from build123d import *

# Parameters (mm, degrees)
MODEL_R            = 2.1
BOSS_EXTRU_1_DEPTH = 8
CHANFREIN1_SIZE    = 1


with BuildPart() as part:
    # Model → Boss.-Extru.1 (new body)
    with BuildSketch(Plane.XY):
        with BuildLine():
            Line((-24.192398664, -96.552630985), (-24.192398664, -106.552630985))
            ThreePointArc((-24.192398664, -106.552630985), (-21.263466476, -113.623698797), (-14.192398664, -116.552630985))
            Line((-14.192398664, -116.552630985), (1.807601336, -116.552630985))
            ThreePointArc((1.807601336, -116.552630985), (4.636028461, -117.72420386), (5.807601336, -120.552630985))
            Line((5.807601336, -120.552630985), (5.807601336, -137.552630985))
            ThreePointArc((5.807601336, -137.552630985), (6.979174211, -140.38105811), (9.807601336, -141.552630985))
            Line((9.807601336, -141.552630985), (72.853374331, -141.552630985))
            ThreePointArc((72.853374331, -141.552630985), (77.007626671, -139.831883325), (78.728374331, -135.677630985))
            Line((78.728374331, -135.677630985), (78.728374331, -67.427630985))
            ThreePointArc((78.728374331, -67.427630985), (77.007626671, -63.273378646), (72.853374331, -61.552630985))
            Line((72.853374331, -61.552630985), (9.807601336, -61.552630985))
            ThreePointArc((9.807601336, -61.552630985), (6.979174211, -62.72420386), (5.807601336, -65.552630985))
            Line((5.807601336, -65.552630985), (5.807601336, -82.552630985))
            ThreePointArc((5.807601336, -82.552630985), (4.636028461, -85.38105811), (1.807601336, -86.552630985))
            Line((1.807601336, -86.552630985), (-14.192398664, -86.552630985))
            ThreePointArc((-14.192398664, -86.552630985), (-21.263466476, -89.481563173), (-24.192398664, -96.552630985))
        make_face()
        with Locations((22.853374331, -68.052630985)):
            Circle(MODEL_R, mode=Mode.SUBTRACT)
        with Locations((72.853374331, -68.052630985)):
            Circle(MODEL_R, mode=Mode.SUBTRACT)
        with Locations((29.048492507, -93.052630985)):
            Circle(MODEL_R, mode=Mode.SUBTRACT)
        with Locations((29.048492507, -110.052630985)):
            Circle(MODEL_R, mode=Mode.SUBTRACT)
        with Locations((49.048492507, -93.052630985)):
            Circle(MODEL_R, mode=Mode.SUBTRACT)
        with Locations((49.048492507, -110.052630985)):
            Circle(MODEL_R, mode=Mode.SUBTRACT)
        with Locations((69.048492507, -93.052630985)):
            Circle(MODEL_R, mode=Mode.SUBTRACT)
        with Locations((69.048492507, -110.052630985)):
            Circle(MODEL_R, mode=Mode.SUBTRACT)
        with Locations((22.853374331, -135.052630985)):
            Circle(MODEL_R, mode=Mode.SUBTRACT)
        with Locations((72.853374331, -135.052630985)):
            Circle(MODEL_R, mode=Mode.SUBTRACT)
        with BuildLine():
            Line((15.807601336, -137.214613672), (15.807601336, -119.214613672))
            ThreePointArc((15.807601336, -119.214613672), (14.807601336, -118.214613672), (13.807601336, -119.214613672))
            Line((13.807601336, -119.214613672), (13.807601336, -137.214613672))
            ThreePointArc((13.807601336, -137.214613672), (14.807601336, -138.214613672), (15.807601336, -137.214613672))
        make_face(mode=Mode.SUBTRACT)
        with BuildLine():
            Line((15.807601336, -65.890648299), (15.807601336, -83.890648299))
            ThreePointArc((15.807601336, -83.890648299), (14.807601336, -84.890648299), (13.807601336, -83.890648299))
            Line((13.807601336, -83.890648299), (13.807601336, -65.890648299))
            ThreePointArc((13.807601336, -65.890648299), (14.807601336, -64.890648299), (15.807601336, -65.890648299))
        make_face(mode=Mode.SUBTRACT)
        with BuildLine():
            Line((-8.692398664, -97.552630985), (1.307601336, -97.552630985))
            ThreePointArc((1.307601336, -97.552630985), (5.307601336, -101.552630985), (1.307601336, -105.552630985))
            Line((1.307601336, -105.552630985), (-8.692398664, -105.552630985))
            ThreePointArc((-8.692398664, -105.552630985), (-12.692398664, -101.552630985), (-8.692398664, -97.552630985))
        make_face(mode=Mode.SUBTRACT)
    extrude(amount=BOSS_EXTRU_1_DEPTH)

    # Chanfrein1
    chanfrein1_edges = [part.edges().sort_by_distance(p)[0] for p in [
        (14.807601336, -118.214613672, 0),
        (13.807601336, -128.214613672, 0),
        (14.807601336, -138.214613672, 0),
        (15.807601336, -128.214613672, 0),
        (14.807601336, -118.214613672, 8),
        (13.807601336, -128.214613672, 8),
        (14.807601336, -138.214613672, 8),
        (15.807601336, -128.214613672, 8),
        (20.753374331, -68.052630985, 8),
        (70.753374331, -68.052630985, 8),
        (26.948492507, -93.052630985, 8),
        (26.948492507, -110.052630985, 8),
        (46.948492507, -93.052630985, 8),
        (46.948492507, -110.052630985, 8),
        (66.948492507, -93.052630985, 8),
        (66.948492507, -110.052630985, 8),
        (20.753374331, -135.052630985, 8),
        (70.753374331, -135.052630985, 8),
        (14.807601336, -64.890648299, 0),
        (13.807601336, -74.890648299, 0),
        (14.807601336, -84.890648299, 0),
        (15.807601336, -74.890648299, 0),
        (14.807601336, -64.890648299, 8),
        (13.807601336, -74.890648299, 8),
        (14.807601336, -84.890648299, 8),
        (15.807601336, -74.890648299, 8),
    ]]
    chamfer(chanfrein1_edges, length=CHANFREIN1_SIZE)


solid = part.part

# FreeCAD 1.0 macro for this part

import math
import FreeCAD as App
import Part
import Sketcher
from FreeCAD import Vector
Q = App.Units.Quantity


def edges_at(feature, points):
    """Names of the edges that pass closest to the given points."""
    edges = feature.Shape.Edges
    near = lambda p: min(range(len(edges)), key=lambda i: edges[i].distToShape(Part.Vertex(*p))[0])
    return sorted({f"Edge{near(p) + 1}" for p in points})

doc = App.newDocument("Part")
params = doc.addObject("Spreadsheet::Sheet", "Params")
for row, (alias, value) in enumerate([
    ("sketch1_radius", "10 mm"),
    ("sketch1_radius2", "4 mm"),
    ("sketch1_radius3", "1 mm"),
    ("sketch1_diameter", "4.2 mm"),
    ("sketch1_width", "16 mm"),
    ("pad1_length", "8 mm"),
    ("chamfer_size", "1 mm"),
], start=1):
    params.set(f"A{row}", alias)
    params.set(f"B{row}", "=" + value)
    params.setAlias(f"B{row}", alias)

body = doc.addObject("PartDesign::Body", "Body")

# Sketch on XY plane
sketch1 = body.newObject("Sketcher::SketchObject", "Sketch")
sketch1.AttachmentSupport = (doc.getObject("XY_Plane"), [""])
sketch1.MapMode = "FlatFace"
sketch1.addGeometry([
    Part.LineSegment(Vector(-24.2, -96.6, 0), Vector(-24.2, -106.6, 0)),  # 0
    Part.ArcOfCircle(Part.Circle(Vector(-14.2, -106.6, 0), Vector(0, 0, 1), 10), math.radians(180), math.radians(270)),  # 1
    Part.LineSegment(Vector(-14.2, -116.6, 0), Vector(1.8, -116.6, 0)),  # 2
    Part.ArcOfCircle(Part.Circle(Vector(1.8, -120.6, 0), Vector(0, 0, 1), 4), math.radians(0), math.radians(90)),  # 3
    Part.LineSegment(Vector(5.8, -120.6, 0), Vector(5.8, -137.6, 0)),  # 4
    Part.ArcOfCircle(Part.Circle(Vector(9.8, -137.6, 0), Vector(0, 0, 1), 4), math.radians(180), math.radians(270)),  # 5
    Part.LineSegment(Vector(9.8, -141.6, 0), Vector(72.9, -141.6, 0)),  # 6
    Part.ArcOfCircle(Part.Circle(Vector(72.9, -135.7, 0), Vector(0, 0, 1), 5.9), math.radians(-90), math.radians(0)),  # 7
    Part.LineSegment(Vector(78.7, -135.7, 0), Vector(78.7, -67.4, 0)),  # 8
    Part.ArcOfCircle(Part.Circle(Vector(72.9, -67.4, 0), Vector(0, 0, 1), 5.9), math.radians(0), math.radians(90)),  # 9
    Part.LineSegment(Vector(72.9, -61.6, 0), Vector(9.8, -61.6, 0)),  # 10
    Part.ArcOfCircle(Part.Circle(Vector(9.8, -65.6, 0), Vector(0, 0, 1), 4), math.radians(90), math.radians(180)),  # 11
    Part.LineSegment(Vector(5.8, -65.6, 0), Vector(5.8, -82.6, 0)),  # 12
    Part.ArcOfCircle(Part.Circle(Vector(1.8, -82.6, 0), Vector(0, 0, 1), 4), math.radians(-90), math.radians(0)),  # 13
    Part.LineSegment(Vector(1.8, -86.6, 0), Vector(-14.2, -86.6, 0)),  # 14
    Part.ArcOfCircle(Part.Circle(Vector(-14.2, -96.6, 0), Vector(0, 0, 1), 10), math.radians(90), math.radians(180)),  # 15
    Part.Circle(Vector(22.9, -135.1, 0), Vector(0, 0, 1), 2.1),  # 16
    Part.LineSegment(Vector(15.8, -119.2, 0), Vector(15.8, -137.2, 0)),  # 17
    Part.ArcOfCircle(Part.Circle(Vector(14.8, -137.2, 0), Vector(0, 0, 1), 1), math.radians(180), math.radians(360)),  # 18
    Part.LineSegment(Vector(13.8, -137.2, 0), Vector(13.8, -119.2, 0)),  # 19
    Part.ArcOfCircle(Part.Circle(Vector(14.8, -119.2, 0), Vector(0, 0, 1), 1), math.radians(0), math.radians(180)),  # 20
    Part.Circle(Vector(29, -110.1, 0), Vector(0, 0, 1), 2.1),  # 21
    Part.Circle(Vector(72.9, -135.1, 0), Vector(0, 0, 1), 2.1),  # 22
    Part.Circle(Vector(49, -110.1, 0), Vector(0, 0, 1), 2.1),  # 23
    Part.Circle(Vector(69, -110.1, 0), Vector(0, 0, 1), 2.1),  # 24
    Part.ArcOfCircle(Part.Circle(Vector(-8.7, -101.6, 0), Vector(0, 0, 1), 4), math.radians(90), math.radians(270)),  # 25
    Part.LineSegment(Vector(-8.7, -97.6, 0), Vector(1.3, -97.6, 0)),  # 26
    Part.ArcOfCircle(Part.Circle(Vector(1.3, -101.6, 0), Vector(0, 0, 1), 4), math.radians(-90), math.radians(90)),  # 27
    Part.LineSegment(Vector(1.3, -105.6, 0), Vector(-8.7, -105.6, 0)),  # 28
    Part.Circle(Vector(29, -93.1, 0), Vector(0, 0, 1), 2.1),  # 29
    Part.ArcOfCircle(Part.Circle(Vector(14.8, -65.9, 0), Vector(0, 0, 1), 1), math.radians(0), math.radians(180)),  # 30
    Part.LineSegment(Vector(15.8, -65.9, 0), Vector(15.8, -83.9, 0)),  # 31
    Part.ArcOfCircle(Part.Circle(Vector(14.8, -83.9, 0), Vector(0, 0, 1), 1), math.radians(180), math.radians(360)),  # 32
    Part.LineSegment(Vector(13.8, -83.9, 0), Vector(13.8, -65.9, 0)),  # 33
    Part.Circle(Vector(22.9, -68.1, 0), Vector(0, 0, 1), 2.1),  # 34
    Part.Circle(Vector(49, -93.1, 0), Vector(0, 0, 1), 2.1),  # 35
    Part.Circle(Vector(69, -93.1, 0), Vector(0, 0, 1), 2.1),  # 36
    Part.Circle(Vector(72.9, -68.1, 0), Vector(0, 0, 1), 2.1),  # 37
], False)
sketch1.addConstraint([
    Sketcher.Constraint("Tangent", 0, 2, 1, 1),
    Sketcher.Constraint("Tangent", 1, 2, 2, 1),
    Sketcher.Constraint("Tangent", 2, 2, 3, 2),
    Sketcher.Constraint("Tangent", 3, 1, 4, 1),
    Sketcher.Constraint("Tangent", 4, 2, 5, 1),
    Sketcher.Constraint("Tangent", 5, 2, 6, 1),
    Sketcher.Constraint("Tangent", 6, 2, 7, 1),
    Sketcher.Constraint("Tangent", 7, 2, 8, 1),
    Sketcher.Constraint("Tangent", 8, 2, 9, 1),
    Sketcher.Constraint("Tangent", 9, 2, 10, 1),
    Sketcher.Constraint("Tangent", 10, 2, 11, 1),
    Sketcher.Constraint("Tangent", 11, 2, 12, 1),
    Sketcher.Constraint("Tangent", 12, 2, 13, 2),
    Sketcher.Constraint("Tangent", 13, 1, 14, 1),
    Sketcher.Constraint("Tangent", 14, 2, 15, 1),
    Sketcher.Constraint("Tangent", 15, 2, 0, 1),
    Sketcher.Constraint("Tangent", 17, 2, 18, 2),
    Sketcher.Constraint("Tangent", 18, 1, 19, 1),
    Sketcher.Constraint("Tangent", 19, 2, 20, 2),
    Sketcher.Constraint("Tangent", 20, 1, 17, 1),
    Sketcher.Constraint("Tangent", 25, 1, 26, 1),
    Sketcher.Constraint("Tangent", 26, 2, 27, 2),
    Sketcher.Constraint("Tangent", 27, 1, 28, 1),
    Sketcher.Constraint("Tangent", 28, 2, 25, 2),
    Sketcher.Constraint("Tangent", 30, 1, 31, 1),
    Sketcher.Constraint("Tangent", 31, 2, 32, 2),
    Sketcher.Constraint("Tangent", 32, 1, 33, 1),
    Sketcher.Constraint("Tangent", 33, 2, 30, 2),
    Sketcher.Constraint("Vertical", 0),
    Sketcher.Constraint("Horizontal", 2),
    Sketcher.Constraint("Vertical", 4),
    Sketcher.Constraint("Horizontal", 6),
    Sketcher.Constraint("Vertical", 8),
    Sketcher.Constraint("Horizontal", 10),
    Sketcher.Constraint("Vertical", 12),
    Sketcher.Constraint("Horizontal", 14),
    Sketcher.Constraint("Vertical", 17),
    Sketcher.Constraint("Vertical", 19),
    Sketcher.Constraint("Horizontal", 26),
    Sketcher.Constraint("Horizontal", 28),
    Sketcher.Constraint("Vertical", 31),
    Sketcher.Constraint("Vertical", 33),
    Sketcher.Constraint("Equal", 3, 5),
    Sketcher.Constraint("Equal", 7, 9),
    Sketcher.Constraint("Equal", 5, 11),
    Sketcher.Constraint("Equal", 11, 13),
    Sketcher.Constraint("Equal", 1, 15),
    Sketcher.Constraint("Equal", 16, 21),
    Sketcher.Constraint("Equal", 21, 22),
    Sketcher.Constraint("Equal", 22, 23),
    Sketcher.Constraint("Equal", 23, 24),
    Sketcher.Constraint("Equal", 13, 25),
    Sketcher.Constraint("Equal", 24, 29),
    Sketcher.Constraint("Equal", 20, 30),
    Sketcher.Constraint("Equal", 29, 34),
    Sketcher.Constraint("Equal", 34, 35),
    Sketcher.Constraint("Equal", 35, 36),
    Sketcher.Constraint("Equal", 36, 37),
    Sketcher.Constraint("Horizontal", 16, 3, 22, 3),
    Sketcher.Constraint("Horizontal", 21, 3, 23, 3),
    Sketcher.Constraint("Horizontal", 23, 3, 24, 3),
    Sketcher.Constraint("Horizontal", 29, 3, 35, 3),
    Sketcher.Constraint("Horizontal", 35, 3, 36, 3),
    Sketcher.Constraint("Horizontal", 34, 3, 37, 3),
    Sketcher.Constraint("Vertical", 5, 3, 11, 3),
    Sketcher.Constraint("Vertical", 9, 3, 22, 3),
    Sketcher.Constraint("Vertical", 21, 3, 29, 3),
    Sketcher.Constraint("Vertical", 20, 3, 30, 3),
    Sketcher.Constraint("Vertical", 16, 3, 34, 3),
    Sketcher.Constraint("Vertical", 23, 3, 35, 3),
    Sketcher.Constraint("Vertical", 24, 3, 36, 3),
    Sketcher.Constraint("Vertical", 22, 3, 37, 3),
    Sketcher.Constraint("Equal", 28, 0),
    Sketcher.Constraint("Equal", 4, 12),
    Sketcher.Constraint("Equal", 19, 31),
    Sketcher.Constraint("Radius", 1, Q("10 mm")),
    Sketcher.Constraint("Radius", 3, Q("4 mm")),
    Sketcher.Constraint("Radius", 18, Q("1 mm")),
    Sketcher.Constraint("Diameter", 16, Q("4.2 mm")),
    Sketcher.Constraint("DistanceX", 2, 1, 2, 2, Q("16 mm")),
    Sketcher.Constraint("DistanceX", 26, 1, 26, 2, Q("10 mm")),
    Sketcher.Constraint("DistanceY", 4, 2, 4, 1, Q("17 mm")),
    Sketcher.Constraint("DistanceY", 17, 2, 17, 1, Q("18 mm")),
    Sketcher.Constraint("Radius", 7, Q("5.875 mm")),
    Sketcher.Constraint("DistanceX", 16, 3, 7, 3, Q("50 mm")),
    Sketcher.Constraint("DistanceX", 5, 3, 18, 3, Q("5 mm")),
    Sketcher.Constraint("DistanceY", 16, 3, 21, 3, Q("25 mm")),
    Sketcher.Constraint("DistanceX", 21, 3, 23, 3, Q("20 mm")),
    Sketcher.Constraint("DistanceX", 23, 3, 24, 3, Q("20 mm")),
    Sketcher.Constraint("DistanceY", 1, 3, 25, 3, Q("5 mm")),
    Sketcher.Constraint("DistanceY", 21, 3, 29, 3, Q("17 mm")),
    Sketcher.Constraint("DistanceY", 29, 3, 34, 3, Q("25 mm")),
    Sketcher.Constraint("DistanceY", 5, 3, 16, 3, Q("2.5 mm")),
    Sketcher.Constraint("DistanceX", 1, 3, 25, 3, Q("5.5 mm")),
    Sketcher.Constraint("DistanceX", 1, 3, -1, 1, Q("14.192399 mm")),
    Sketcher.Constraint("DistanceX", 6, 1, 6, 2, Q("63.045773 mm")),
    Sketcher.Constraint("DistanceY", 1, 3, -1, 1, Q("106.552631 mm")),
    Sketcher.Constraint("DistanceY", 30, 3, -1, 1, Q("65.890648 mm")),
    Sketcher.Constraint("DistanceX", 20, 3, 21, 3, Q("14.240891 mm")),
    Sketcher.Constraint("DistanceY", 18, 3, -1, 1, Q("137.214614 mm")),
])
sketch1.setExpression("Constraints[75]", "Params.sketch1_radius")
sketch1.setExpression("Constraints[76]", "Params.sketch1_radius2")
sketch1.setExpression("Constraints[77]", "Params.sketch1_radius3")
sketch1.setExpression("Constraints[78]", "Params.sketch1_diameter")
sketch1.setExpression("Constraints[79]", "Params.sketch1_width")
pad1 = body.newObject("PartDesign::Pad", "Pad")
pad1.Profile = sketch1
pad1.setExpression("Length", "Params.pad1_length")
doc.recompute()

chamfer = body.newObject("PartDesign::Chamfer", "Chamfer")
chamfer.Base = (pad1, edges_at(pad1, [
    (14.808, -118.215, 0),
    (13.808, -128.215, 0),
    (14.808, -138.215, 0),
    (15.808, -128.215, 0),
    (14.808, -118.215, 8),
    (13.808, -128.215, 8),
    (14.808, -138.215, 8),
    (15.808, -128.215, 8),
    (20.753, -68.053, 8),
    (70.753, -68.053, 8),
    (26.948, -93.053, 8),
    (26.948, -110.053, 8),
    (46.948, -93.053, 8),
    (46.948, -110.053, 8),
    (66.948, -93.053, 8),
    (66.948, -110.053, 8),
    (20.753, -135.053, 8),
    (70.753, -135.053, 8),
    (14.808, -64.891, 0),
    (13.808, -74.891, 0),
    (14.808, -84.891, 0),
    (15.808, -74.891, 0),
    (14.808, -64.891, 8),
    (13.808, -74.891, 8),
    (14.808, -84.891, 8),
    (15.808, -74.891, 8),
]))
chamfer.setExpression("Size", "Params.chamfer_size")

doc.recompute()
